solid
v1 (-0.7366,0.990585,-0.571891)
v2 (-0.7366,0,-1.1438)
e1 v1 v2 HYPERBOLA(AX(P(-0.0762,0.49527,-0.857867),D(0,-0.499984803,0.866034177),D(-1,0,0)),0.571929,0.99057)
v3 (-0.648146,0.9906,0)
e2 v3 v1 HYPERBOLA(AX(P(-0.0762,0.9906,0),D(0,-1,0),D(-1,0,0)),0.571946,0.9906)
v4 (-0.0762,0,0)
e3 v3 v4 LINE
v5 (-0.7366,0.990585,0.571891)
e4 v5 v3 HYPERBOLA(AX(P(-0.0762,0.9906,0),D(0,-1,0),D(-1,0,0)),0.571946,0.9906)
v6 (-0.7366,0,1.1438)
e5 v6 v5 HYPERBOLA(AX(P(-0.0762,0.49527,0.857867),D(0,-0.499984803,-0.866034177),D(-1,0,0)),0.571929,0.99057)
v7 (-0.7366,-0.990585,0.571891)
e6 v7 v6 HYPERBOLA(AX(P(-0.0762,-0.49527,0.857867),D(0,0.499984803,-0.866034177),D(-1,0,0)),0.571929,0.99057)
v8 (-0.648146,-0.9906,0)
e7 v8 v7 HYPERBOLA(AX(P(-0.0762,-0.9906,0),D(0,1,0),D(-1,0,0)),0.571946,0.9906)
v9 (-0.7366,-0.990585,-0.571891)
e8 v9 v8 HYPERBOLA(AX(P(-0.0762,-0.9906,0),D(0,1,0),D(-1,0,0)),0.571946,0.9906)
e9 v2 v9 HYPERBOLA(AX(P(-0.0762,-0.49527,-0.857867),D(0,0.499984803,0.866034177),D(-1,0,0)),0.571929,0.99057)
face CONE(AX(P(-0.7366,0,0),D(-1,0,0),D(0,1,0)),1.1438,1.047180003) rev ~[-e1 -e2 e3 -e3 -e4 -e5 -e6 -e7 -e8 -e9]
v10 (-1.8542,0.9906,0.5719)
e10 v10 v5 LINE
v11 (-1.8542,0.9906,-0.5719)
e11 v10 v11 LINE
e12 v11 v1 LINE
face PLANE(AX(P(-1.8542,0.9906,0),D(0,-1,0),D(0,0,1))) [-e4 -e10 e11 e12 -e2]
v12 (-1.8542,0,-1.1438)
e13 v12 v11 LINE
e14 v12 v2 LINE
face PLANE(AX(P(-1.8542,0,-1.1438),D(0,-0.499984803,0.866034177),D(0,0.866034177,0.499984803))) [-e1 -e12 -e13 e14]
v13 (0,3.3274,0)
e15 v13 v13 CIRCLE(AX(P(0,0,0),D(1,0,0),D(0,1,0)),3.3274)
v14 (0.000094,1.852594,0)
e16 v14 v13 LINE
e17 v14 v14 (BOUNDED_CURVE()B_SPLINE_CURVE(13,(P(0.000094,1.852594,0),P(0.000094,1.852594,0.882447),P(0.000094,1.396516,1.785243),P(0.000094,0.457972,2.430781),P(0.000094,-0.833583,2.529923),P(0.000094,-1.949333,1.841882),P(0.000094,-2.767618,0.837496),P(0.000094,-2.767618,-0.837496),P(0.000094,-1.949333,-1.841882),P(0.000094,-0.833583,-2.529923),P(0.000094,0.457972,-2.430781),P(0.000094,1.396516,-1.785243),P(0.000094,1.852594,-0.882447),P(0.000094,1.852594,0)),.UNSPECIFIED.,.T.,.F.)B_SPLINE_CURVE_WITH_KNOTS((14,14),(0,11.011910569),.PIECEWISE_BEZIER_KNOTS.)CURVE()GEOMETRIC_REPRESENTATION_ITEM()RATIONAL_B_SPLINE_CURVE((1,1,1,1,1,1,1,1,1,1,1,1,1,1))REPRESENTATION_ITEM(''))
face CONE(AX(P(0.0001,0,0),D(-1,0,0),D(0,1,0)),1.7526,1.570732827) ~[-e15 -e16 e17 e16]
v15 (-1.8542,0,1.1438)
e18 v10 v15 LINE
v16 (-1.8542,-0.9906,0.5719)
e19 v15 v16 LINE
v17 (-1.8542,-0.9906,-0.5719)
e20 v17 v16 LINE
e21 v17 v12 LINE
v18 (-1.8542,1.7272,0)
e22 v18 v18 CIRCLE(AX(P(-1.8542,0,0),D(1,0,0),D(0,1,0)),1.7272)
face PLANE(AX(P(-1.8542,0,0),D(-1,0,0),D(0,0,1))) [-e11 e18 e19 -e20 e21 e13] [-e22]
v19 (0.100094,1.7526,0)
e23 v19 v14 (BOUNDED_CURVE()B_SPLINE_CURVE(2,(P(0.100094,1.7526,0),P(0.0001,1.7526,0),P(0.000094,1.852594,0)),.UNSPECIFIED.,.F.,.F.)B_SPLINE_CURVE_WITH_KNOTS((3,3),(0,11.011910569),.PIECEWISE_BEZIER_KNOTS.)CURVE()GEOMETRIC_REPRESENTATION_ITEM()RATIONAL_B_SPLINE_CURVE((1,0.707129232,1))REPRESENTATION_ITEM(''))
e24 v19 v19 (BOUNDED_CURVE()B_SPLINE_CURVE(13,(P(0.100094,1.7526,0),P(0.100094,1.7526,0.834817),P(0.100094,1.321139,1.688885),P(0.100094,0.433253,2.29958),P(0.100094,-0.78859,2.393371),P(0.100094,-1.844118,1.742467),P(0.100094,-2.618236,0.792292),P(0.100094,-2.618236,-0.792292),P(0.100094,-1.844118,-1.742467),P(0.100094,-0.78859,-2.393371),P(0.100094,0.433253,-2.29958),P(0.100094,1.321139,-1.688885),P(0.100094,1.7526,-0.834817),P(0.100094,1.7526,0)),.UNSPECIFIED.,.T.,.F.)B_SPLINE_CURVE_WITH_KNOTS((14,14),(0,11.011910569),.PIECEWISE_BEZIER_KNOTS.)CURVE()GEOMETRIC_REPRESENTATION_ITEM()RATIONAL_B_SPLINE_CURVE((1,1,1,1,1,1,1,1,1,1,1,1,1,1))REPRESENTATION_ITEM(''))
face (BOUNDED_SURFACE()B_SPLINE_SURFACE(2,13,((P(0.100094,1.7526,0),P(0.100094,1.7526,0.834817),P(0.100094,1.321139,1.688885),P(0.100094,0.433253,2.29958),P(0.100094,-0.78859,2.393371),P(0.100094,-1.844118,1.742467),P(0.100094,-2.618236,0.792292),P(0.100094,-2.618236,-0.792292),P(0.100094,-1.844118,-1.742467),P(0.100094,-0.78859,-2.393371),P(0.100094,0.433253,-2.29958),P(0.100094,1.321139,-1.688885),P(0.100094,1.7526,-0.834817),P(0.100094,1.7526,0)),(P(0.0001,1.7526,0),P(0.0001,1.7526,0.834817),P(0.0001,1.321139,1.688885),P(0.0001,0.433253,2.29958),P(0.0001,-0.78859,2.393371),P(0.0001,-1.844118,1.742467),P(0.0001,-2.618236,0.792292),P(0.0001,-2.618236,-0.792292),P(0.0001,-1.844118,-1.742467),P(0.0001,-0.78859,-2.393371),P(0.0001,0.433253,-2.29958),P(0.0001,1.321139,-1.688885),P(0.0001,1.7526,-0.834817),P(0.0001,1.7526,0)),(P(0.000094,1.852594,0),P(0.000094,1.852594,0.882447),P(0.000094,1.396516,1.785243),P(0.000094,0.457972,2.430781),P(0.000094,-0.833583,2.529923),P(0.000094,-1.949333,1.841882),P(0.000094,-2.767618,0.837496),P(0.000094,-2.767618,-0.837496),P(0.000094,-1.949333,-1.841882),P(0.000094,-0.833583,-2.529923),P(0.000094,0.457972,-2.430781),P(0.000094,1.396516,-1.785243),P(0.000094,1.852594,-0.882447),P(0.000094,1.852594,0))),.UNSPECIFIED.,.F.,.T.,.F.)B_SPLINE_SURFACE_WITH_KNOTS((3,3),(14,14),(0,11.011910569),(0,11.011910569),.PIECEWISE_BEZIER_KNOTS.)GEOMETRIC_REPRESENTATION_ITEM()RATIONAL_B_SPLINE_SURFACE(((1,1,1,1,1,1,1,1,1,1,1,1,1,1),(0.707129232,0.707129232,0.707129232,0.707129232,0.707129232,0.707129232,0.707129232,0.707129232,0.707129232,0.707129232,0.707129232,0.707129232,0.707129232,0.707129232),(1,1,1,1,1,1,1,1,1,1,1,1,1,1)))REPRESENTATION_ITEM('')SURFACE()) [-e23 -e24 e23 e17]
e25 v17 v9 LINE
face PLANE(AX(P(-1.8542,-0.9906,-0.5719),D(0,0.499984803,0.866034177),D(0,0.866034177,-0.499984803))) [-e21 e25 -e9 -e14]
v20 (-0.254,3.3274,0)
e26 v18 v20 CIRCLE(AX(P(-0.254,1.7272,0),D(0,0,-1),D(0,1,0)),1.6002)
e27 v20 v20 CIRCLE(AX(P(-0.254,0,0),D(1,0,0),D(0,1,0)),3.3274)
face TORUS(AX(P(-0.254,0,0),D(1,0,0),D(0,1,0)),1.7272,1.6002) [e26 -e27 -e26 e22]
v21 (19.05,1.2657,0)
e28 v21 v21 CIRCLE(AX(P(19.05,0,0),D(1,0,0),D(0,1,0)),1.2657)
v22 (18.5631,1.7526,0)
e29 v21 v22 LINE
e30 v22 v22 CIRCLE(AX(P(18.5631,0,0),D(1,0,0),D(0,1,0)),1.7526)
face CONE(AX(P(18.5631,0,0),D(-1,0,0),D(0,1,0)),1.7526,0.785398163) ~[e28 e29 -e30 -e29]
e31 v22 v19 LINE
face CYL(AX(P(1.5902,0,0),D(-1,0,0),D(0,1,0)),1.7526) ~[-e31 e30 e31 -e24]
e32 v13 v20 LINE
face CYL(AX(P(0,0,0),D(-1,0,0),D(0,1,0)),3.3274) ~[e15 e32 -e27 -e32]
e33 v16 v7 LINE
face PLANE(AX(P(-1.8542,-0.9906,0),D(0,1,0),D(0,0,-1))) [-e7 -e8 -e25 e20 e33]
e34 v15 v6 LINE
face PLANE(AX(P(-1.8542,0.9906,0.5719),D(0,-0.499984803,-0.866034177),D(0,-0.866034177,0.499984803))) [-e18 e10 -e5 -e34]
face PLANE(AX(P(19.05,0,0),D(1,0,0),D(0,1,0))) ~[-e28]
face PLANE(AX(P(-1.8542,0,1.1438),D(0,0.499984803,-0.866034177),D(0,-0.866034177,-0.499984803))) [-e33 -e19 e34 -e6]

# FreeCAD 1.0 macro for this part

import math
import FreeCAD as App
import Part
import Sketcher
from FreeCAD import Vector
Q = App.Units.Quantity


def edges_at(feature, points):
    """Names of the edges that pass closest to the given points."""
    edges = feature.Shape.Edges
    near = lambda p: min(range(len(edges)), key=lambda i: edges[i].distToShape(Part.Vertex(*p))[0])
    return sorted({f"Edge{near(p) + 1}" for p in points})


def add_polygon(sketch, points):
    """Adds a closed chain of lines whose ends are joined by coincident constraints."""
    first, n = sketch.GeometryCount, len(points)
    for a, b in zip(points, points[1:] + points[:1]):
        sketch.addGeometry(Part.LineSegment(App.Vector(*a, 0), App.Vector(*b, 0)), False)
    for i in range(n):
        sketch.addConstraint(Sketcher.Constraint("Coincident", first + i, 2, first + (i + 1) % n, 1))

doc = App.newDocument("Part")
body = doc.addObject("PartDesign::Body", "Body")

# Sketch on XY plane
sketch1 = body.newObject("Sketcher::SketchObject", "Sketch")
sketch1.AttachmentSupport = (doc.getObject("XY_Plane"), [""])
sketch1.MapMode = "FlatFace"
add_polygon(sketch1, [(-0.7, 1.1), (-0.1, 0), (19.1, 0), (19.1, 1.8), (0, 1.8), (0, 3.3), (-1.9, 3.3), (-1.9, 1.1)])  # lines 0-7
sketch1.addConstraint([
    Sketcher.Constraint("Horizontal", 1),
    Sketcher.Constraint("Vertical", 2),
    Sketcher.Constraint("Horizontal", 3),
    Sketcher.Constraint("Vertical", 4),
    Sketcher.Constraint("Horizontal", 5),
    Sketcher.Constraint("Vertical", 6),
    Sketcher.Constraint("Horizontal", 7),
    Sketcher.Constraint("PointOnObject", 0, 2, -1),
    Sketcher.Constraint("PointOnObject", 3, 2, -2),
    Sketcher.Constraint("DistanceX", 3, 2, 3, 1, Q("0.75 in")),
    Sketcher.Constraint("DistanceX", 5, 2, 5, 1, Q("0.073 in")),
    Sketcher.Constraint("DistanceX", 7, 1, 7, 2, Q("0.044 in")),
    Sketcher.Constraint("Angle", 0, Q("-59.999 deg")),
    Sketcher.Constraint("DistanceX", 1, 1, 1, 2, Q("0.753 in")),
    Sketcher.Constraint("DistanceY", 2, 1, 2, 2, Q("0.069 in")),
    Sketcher.Constraint("DistanceY", 4, 1, 4, 2, Q("0.062 in")),
])
revolution = body.newObject("PartDesign::Revolution", "Revolution")
revolution.Profile = sketch1
revolution.ReferenceAxis = (sketch1, ["H_Axis"])
revolution.Angle = 360

# Sketch on YZ plane
sketch2 = body.newObject("Sketcher::SketchObject", "Sketch001")
sketch2.AttachmentSupport = (doc.getObject("YZ_Plane"), [""])
sketch2.MapMode = "FlatFace"
sketch2.AttachmentOffset = App.Placement(Vector(0, 0, -0.073 * 25.4), App.Rotation())
sketch2.addGeometry([
    Part.LineSegment(Vector(1, 0.6, 0), Vector(0, 1.1, 0)),  # 0
    Part.ArcOfCircle(Part.Circle(Vector(0, 0, 0), Vector(0, 0, 1), 1.1), math.radians(30), math.radians(90)),  # 1
    Part.ArcOfCircle(Part.Circle(Vector(0, 0, 0), Vector(0, 0, 1), 1.1), math.radians(90), math.radians(150)),  # 2
    Part.LineSegment(Vector(0, 1.1, 0), Vector(-1, 0.6, 0)),  # 3
    Part.ArcOfCircle(Part.Circle(Vector(0, 0, 0), Vector(0, 0, 1), 1.1), math.radians(-30), math.radians(30)),  # 4
    Part.LineSegment(Vector(1, 0.6, 0), Vector(1, -0.6, 0)),  # 5
    Part.LineSegment(Vector(-1, 0.6, 0), Vector(-1, -0.6, 0)),  # 6
    Part.ArcOfCircle(Part.Circle(Vector(0, 0, 0), Vector(0, 0, 1), 1.1), math.radians(150), math.radians(210)),  # 7
    Part.LineSegment(Vector(-1, -0.6, 0), Vector(0, -1.1, 0)),  # 8
    Part.ArcOfCircle(Part.Circle(Vector(0, 0, 0), Vector(0, 0, 1), 1.1), math.radians(-150), math.radians(-90)),  # 9
    Part.ArcOfCircle(Part.Circle(Vector(0, 0, 0), Vector(0, 0, 1), 1.1), math.radians(-90), math.radians(-30)),  # 10
    Part.LineSegment(Vector(0, -1.1, 0), Vector(1, -0.6, 0)),  # 11
], False)
sketch2.addConstraint([
    Sketcher.Constraint("Coincident", 0, 1, 1, 1),
    Sketcher.Constraint("Coincident", 1, 2, 0, 2),
    Sketcher.Constraint("Coincident", 2, 1, 3, 1),
    Sketcher.Constraint("Coincident", 3, 2, 2, 2),
    Sketcher.Constraint("Coincident", 4, 1, 5, 2),
    Sketcher.Constraint("Coincident", 5, 1, 4, 2),
    Sketcher.Constraint("Coincident", 6, 1, 7, 1),
    Sketcher.Constraint("Coincident", 7, 2, 6, 2),
    Sketcher.Constraint("Coincident", 8, 1, 9, 1),
    Sketcher.Constraint("Coincident", 9, 2, 8, 2),
    Sketcher.Constraint("Coincident", 10, 1, 11, 1),
    Sketcher.Constraint("Coincident", 11, 2, 10, 2),
    Sketcher.Constraint("Vertical", 5),
    Sketcher.Constraint("Vertical", 6),
    Sketcher.Constraint("Coincident", 1, 3, -1, 1),
    Sketcher.Constraint("Coincident", 2, 3, -1, 1),
    Sketcher.Constraint("Coincident", 4, 3, -1, 1),
    Sketcher.Constraint("Coincident", 7, 3, -1, 1),
    Sketcher.Constraint("Coincident", 9, 3, -1, 1),
    Sketcher.Constraint("Coincident", 10, 3, -1, 1),
    Sketcher.Constraint("Coincident", 2, 1, 1, 2),
    Sketcher.Constraint("Coincident", 5, 1, 0, 1),
    Sketcher.Constraint("Coincident", 6, 1, 3, 2),
    Sketcher.Constraint("Coincident", 8, 1, 7, 2),
    Sketcher.Constraint("Coincident", 10, 1, 9, 2),
    Sketcher.Constraint("PointOnObject", 1, 2, -2),
    Sketcher.Constraint("PointOnObject", 9, 2, -2),
    Sketcher.Constraint("Parallel", 0, 8),
    Sketcher.Constraint("Parallel", 3, 11),
    Sketcher.Constraint("Angle", 0, Q("150.001 deg")),
    Sketcher.Constraint("Radius", 1, Q("1.1438 mm")),
])
pad1 = body.newObject("PartDesign::Pad", "Pad")
pad1.Profile = sketch2
pad1.Type = "UpToFirst"
doc.recompute()

fillet = body.newObject("PartDesign::Fillet", "Fillet")
fillet.Base = (pad1, edges_at(pad1, [(-1.854, -3.327, 0)]))
fillet.Radius = Q("0.063 in")
doc.recompute()

chamfer = body.newObject("PartDesign::Chamfer", "Chamfer")
chamfer.Base = (fillet, edges_at(fillet, [(19.05, -1.753, 0)]))
chamfer.ChamferType = "Two distances"
chamfer.Size = 0.4869
chamfer.Size2 = 0.4869
doc.recompute()

fillet2 = body.newObject("PartDesign::Fillet", "Fillet001")
fillet2.Base = (chamfer, edges_at(chamfer, [(0, -1.753, 0)]))
fillet2.Radius = 0.1

doc.recompute()
